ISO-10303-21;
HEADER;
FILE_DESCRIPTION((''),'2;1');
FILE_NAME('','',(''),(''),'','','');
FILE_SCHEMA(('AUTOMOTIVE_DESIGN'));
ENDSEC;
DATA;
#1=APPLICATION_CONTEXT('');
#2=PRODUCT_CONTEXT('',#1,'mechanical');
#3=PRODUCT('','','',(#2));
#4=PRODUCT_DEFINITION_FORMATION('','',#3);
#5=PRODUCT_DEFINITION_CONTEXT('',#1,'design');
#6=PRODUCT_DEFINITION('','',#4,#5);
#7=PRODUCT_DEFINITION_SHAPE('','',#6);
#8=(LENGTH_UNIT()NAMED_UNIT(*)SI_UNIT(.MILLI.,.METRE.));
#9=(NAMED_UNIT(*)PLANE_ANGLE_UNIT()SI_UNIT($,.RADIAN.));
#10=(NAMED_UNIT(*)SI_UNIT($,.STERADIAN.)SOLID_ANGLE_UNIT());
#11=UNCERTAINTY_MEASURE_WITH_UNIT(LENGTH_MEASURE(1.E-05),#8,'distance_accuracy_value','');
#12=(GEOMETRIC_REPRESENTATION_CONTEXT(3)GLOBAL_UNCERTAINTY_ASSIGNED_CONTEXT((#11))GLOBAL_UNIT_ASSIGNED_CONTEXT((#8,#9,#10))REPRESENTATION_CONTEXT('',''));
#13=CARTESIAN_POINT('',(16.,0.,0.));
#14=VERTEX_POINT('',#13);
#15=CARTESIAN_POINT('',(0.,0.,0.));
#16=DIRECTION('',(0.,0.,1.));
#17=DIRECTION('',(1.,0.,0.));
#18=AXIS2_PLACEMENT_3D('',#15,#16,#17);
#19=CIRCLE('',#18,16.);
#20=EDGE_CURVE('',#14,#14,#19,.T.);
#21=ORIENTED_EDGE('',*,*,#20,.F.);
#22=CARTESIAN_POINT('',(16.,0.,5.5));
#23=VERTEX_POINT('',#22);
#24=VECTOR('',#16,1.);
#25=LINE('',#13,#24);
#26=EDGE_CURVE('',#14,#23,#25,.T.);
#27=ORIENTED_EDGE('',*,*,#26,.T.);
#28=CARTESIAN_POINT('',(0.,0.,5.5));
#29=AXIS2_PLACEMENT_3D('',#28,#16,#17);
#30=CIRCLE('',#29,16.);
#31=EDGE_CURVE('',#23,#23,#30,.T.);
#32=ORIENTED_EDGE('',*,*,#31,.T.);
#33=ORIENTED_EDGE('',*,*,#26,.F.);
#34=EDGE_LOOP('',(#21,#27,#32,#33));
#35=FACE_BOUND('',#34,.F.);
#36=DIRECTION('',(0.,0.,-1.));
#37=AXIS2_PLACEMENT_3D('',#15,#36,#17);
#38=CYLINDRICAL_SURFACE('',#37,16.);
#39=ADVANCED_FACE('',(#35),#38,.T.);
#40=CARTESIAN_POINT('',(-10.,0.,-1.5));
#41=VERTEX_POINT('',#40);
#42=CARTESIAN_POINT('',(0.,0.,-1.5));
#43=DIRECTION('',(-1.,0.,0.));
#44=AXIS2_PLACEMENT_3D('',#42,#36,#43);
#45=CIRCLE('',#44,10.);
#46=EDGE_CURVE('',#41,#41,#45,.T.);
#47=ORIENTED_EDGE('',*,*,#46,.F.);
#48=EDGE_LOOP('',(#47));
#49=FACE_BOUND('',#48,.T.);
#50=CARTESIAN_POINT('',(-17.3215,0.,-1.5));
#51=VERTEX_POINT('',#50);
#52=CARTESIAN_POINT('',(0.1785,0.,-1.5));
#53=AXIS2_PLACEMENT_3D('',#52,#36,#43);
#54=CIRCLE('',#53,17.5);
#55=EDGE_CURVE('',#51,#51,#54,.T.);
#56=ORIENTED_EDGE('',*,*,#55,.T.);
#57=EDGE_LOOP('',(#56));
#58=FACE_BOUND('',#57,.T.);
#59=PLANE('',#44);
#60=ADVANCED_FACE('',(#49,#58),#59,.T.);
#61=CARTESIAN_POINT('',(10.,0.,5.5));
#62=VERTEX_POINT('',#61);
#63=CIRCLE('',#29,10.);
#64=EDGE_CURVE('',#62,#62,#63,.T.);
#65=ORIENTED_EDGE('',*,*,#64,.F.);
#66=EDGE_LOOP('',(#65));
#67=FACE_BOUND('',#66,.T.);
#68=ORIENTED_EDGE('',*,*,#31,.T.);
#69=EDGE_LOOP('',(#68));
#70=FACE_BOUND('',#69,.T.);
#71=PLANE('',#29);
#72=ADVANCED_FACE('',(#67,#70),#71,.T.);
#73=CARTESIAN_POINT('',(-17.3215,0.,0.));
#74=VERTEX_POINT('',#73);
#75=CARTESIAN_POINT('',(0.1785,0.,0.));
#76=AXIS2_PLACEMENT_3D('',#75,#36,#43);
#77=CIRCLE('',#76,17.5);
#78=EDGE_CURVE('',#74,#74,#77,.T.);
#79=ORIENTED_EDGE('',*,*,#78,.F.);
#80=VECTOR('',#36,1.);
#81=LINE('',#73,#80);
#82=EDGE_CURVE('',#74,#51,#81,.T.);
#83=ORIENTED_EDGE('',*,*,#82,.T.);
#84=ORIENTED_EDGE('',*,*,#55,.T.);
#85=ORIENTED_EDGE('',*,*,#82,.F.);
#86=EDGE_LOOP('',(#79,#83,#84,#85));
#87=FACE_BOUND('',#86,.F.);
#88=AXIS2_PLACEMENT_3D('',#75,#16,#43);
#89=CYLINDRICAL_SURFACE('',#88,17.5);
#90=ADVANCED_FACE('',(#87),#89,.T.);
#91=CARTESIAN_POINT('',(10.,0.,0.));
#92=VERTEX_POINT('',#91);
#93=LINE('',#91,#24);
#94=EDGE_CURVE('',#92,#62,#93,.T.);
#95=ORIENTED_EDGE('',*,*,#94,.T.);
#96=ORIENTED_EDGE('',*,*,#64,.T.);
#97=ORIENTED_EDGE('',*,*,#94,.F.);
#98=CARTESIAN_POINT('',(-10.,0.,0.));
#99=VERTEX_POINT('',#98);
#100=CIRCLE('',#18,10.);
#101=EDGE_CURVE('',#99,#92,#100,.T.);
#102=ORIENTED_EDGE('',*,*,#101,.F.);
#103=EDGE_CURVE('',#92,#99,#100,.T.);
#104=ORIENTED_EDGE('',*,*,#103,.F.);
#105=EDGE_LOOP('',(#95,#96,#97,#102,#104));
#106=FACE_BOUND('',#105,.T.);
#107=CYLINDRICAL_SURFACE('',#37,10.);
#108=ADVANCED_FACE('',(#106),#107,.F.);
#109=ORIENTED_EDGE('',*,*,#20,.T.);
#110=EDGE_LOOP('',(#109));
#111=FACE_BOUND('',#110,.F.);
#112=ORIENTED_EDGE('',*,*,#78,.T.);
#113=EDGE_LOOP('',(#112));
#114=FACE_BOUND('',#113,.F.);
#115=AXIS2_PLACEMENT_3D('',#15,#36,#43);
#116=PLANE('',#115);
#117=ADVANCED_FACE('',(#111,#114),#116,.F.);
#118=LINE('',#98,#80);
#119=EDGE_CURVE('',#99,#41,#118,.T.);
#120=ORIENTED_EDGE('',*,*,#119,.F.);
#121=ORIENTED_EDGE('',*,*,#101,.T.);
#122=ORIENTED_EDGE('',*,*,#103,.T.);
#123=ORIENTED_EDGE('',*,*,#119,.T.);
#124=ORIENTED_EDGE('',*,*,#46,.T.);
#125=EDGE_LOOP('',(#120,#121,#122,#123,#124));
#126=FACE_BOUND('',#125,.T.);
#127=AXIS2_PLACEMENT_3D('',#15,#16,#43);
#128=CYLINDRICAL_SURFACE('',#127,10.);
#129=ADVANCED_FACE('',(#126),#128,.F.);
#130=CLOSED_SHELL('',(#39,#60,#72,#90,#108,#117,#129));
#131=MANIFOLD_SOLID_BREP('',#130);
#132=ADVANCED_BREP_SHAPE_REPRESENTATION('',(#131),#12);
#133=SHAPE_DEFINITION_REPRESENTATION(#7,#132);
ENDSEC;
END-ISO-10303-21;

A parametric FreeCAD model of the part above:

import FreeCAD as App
import Part
import Sketcher
from FreeCAD import Vector
Q = App.Units.Quantity

doc = App.newDocument("Part")
body = doc.addObject("PartDesign::Body", "Body")

# Sketch on XY plane
sketch1 = body.newObject("Sketcher::SketchObject", "Sketch")
sketch1.AttachmentSupport = (doc.getObject("XY_Plane"), [""])
sketch1.MapMode = "FlatFace"
sketch1.addGeometry([
    Part.Circle(Vector(0, 0, 0), Vector(0, 0, 1), 16),
    Part.Circle(Vector(0, 0, 0), Vector(0, 0, 1), 10),
], False)
sketch1.addConstraint([
    Sketcher.Constraint("Coincident", 0, 3, -1, 1),
    Sketcher.Constraint("Coincident", 1, 3, -1, 1),
    Sketcher.Constraint("Diameter", 0, Q("32 mm")),
    Sketcher.Constraint("Diameter", 1, Q("20 mm")),
])
pad1 = body.newObject("PartDesign::Pad", "Pad")
pad1.Profile = sketch1
pad1.Length = 5.5

# Sketch on XY plane
sketch2 = body.newObject("Sketcher::SketchObject", "Sketch001")
sketch2.AttachmentSupport = (doc.getObject("XY_Plane"), [""])
sketch2.MapMode = "FlatFace"
sketch2.addGeometry([
    Part.Circle(Vector(0, 0, 0), Vector(0, 0, 1), 18),
    Part.Circle(Vector(0, 0, 0), Vector(0, 0, 1), 10),
], False)
sketch2.addConstraint([
    Sketcher.Constraint("Coincident", 1, 3, -1, 1),
    Sketcher.Constraint("PointOnObject", 0, 3, -1),
    Sketcher.Constraint("Diameter", 0, Q("35 mm")),
    Sketcher.Constraint("Diameter", 1, Q("20 mm")),
    Sketcher.Constraint("DistanceX", -1, 1, 0, 3, Q("0.1785 mm")),
])
pad2 = body.newObject("PartDesign::Pad", "Pad001")
pad2.Profile = sketch2
pad2.Length = 1.5
pad2.Reversed = True

doc.recompute()
